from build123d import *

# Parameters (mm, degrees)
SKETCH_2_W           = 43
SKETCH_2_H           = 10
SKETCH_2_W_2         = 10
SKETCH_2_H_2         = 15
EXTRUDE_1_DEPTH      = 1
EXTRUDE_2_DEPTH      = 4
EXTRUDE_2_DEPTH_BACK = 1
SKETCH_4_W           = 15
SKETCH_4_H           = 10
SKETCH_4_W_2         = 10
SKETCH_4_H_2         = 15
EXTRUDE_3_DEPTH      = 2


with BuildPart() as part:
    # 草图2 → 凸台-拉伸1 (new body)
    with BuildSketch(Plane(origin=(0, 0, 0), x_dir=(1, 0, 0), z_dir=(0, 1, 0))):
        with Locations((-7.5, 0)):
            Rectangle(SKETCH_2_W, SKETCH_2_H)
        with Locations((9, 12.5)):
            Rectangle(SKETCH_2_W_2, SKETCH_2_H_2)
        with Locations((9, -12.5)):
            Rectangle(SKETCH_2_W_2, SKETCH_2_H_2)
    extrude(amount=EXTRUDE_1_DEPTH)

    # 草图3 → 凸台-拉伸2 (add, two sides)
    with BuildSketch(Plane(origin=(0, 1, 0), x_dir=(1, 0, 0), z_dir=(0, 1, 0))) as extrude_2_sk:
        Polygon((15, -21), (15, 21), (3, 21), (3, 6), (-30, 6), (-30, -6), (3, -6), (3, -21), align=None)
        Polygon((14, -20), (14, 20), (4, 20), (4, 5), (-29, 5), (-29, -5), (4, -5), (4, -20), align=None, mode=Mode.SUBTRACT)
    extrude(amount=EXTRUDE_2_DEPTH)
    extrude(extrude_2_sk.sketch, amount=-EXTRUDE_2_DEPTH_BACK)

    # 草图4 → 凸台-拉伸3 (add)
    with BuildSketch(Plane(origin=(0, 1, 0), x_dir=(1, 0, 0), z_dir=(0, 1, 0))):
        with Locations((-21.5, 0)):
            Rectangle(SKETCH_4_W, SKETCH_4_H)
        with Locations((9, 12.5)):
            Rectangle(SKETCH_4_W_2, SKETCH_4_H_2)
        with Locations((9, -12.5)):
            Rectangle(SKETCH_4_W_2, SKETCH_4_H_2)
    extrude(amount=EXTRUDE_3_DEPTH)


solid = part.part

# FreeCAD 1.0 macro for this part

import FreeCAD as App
import Part
import Sketcher

V = App.Vector
Q = App.Units.Quantity

doc = App.newDocument("Part")
body = doc.addObject("PartDesign::Body", "Body")

# Sketch on XZ plane
sketch1 = body.newObject("Sketcher::SketchObject", "Sketch")
sketch1.AttachmentSupport = (doc.getObject("XZ_Plane"), [""])
sketch1.MapMode = "FlatFace"
sketch1.addGeometry([
    Part.LineSegment(V(-29, -5, 0), V(-29, 5, 0)),  # 0
    Part.LineSegment(V(-29, 5, 0), V(4, 5, 0)),  # 1
    Part.LineSegment(V(4, 5, 0), V(4, 20, 0)),  # 2
    Part.LineSegment(V(4, 20, 0), V(14, 20, 0)),  # 3
    Part.LineSegment(V(14, 20, 0), V(14, -20, 0)),  # 4
    Part.LineSegment(V(14, -20, 0), V(4, -20, 0)),  # 5
    Part.LineSegment(V(4, -20, 0), V(4, -5, 0)),  # 6
    Part.LineSegment(V(4, -5, 0), V(-29, -5, 0)),  # 7
], False)
sketch1.addConstraint([
    Sketcher.Constraint("Coincident", 0, 2, 1, 1),
    Sketcher.Constraint("Coincident", 1, 2, 2, 1),
    Sketcher.Constraint("Coincident", 2, 2, 3, 1),
    Sketcher.Constraint("Coincident", 3, 2, 4, 1),
    Sketcher.Constraint("Coincident", 4, 2, 5, 1),
    Sketcher.Constraint("Coincident", 5, 2, 6, 1),
    Sketcher.Constraint("Coincident", 6, 2, 7, 1),
    Sketcher.Constraint("Coincident", 7, 2, 0, 1),
    Sketcher.Constraint("Vertical", 0),
    Sketcher.Constraint("Horizontal", 1),
    Sketcher.Constraint("Vertical", 2),
    Sketcher.Constraint("Horizontal", 3),
    Sketcher.Constraint("Vertical", 4),
    Sketcher.Constraint("Horizontal", 5),
    Sketcher.Constraint("Vertical", 6),
    Sketcher.Constraint("Horizontal", 7),
    Sketcher.Constraint("Symmetric", 2, 2, 5, 2, -1),
    Sketcher.Constraint("Equal", 5, 0),
    Sketcher.Constraint("Equal", 2, 6),
    Sketcher.Constraint("DistanceX", 1, 1, 1, 2, Q("33 mm")),
    Sketcher.Constraint("DistanceX", 3, 1, 3, 2, Q("10 mm")),
    Sketcher.Constraint("DistanceY", 2, 1, 2, 2, Q("15 mm")),
    Sketcher.Constraint("DistanceX", 0, 2, -1, 1, Q("29 mm")),
])
pad1 = body.newObject("PartDesign::Pad", "Pad")
pad1.Profile = sketch1
pad1.Length = 1
pad1.Reversed = True

# Sketch on XZ plane
sketch2 = body.newObject("Sketcher::SketchObject", "Sketch001")
sketch2.AttachmentSupport = (doc.getObject("XZ_Plane"), [""])
sketch2.MapMode = "FlatFace"
sketch2.AttachmentOffset = App.Placement(V(0, 0, -1), App.Rotation())
sketch2.addGeometry([
    Part.LineSegment(V(15, 21, 0), V(15, -21, 0)),  # 0
    Part.LineSegment(V(15, -21, 0), V(3, -21, 0)),  # 1
    Part.LineSegment(V(3, -21, 0), V(3, -6, 0)),  # 2
    Part.LineSegment(V(3, -6, 0), V(-30, -6, 0)),  # 3
    Part.LineSegment(V(-30, -6, 0), V(-30, 6, 0)),  # 4
    Part.LineSegment(V(-30, 6, 0), V(3, 6, 0)),  # 5
    Part.LineSegment(V(3, 6, 0), V(3, 21, 0)),  # 6
    Part.LineSegment(V(3, 21, 0), V(15, 21, 0)),  # 7
    Part.LineSegment(V(14, -20, 0), V(14, 20, 0)),  # 8
    Part.LineSegment(V(14, 20, 0), V(4, 20, 0)),  # 9
    Part.LineSegment(V(4, 20, 0), V(4, 5, 0)),  # 10
    Part.LineSegment(V(4, 5, 0), V(-29, 5, 0)),  # 11
    Part.LineSegment(V(-29, 5, 0), V(-29, -5, 0)),  # 12
    Part.LineSegment(V(-29, -5, 0), V(4, -5, 0)),  # 13
    Part.LineSegment(V(4, -5, 0), V(4, -20, 0)),  # 14
    Part.LineSegment(V(4, -20, 0), V(14, -20, 0)),  # 15
], False)
sketch2.addConstraint([
    Sketcher.Constraint("Coincident", 0, 2, 1, 1),
    Sketcher.Constraint("Coincident", 1, 2, 2, 1),
    Sketcher.Constraint("Coincident", 2, 2, 3, 1),
    Sketcher.Constraint("Coincident", 3, 2, 4, 1),
    Sketcher.Constraint("Coincident", 4, 2, 5, 1),
    Sketcher.Constraint("Coincident", 5, 2, 6, 1),
    Sketcher.Constraint("Coincident", 6, 2, 7, 1),
    Sketcher.Constraint("Coincident", 7, 2, 0, 1),
    Sketcher.Constraint("Coincident", 8, 2, 9, 1),
    Sketcher.Constraint("Coincident", 9, 2, 10, 1),
    Sketcher.Constraint("Coincident", 10, 2, 11, 1),
    Sketcher.Constraint("Coincident", 11, 2, 12, 1),
    Sketcher.Constraint("Coincident", 12, 2, 13, 1),
    Sketcher.Constraint("Coincident", 13, 2, 14, 1),
    Sketcher.Constraint("Coincident", 14, 2, 15, 1),
    Sketcher.Constraint("Coincident", 15, 2, 8, 1),
    Sketcher.Constraint("Vertical", 0),
    Sketcher.Constraint("Horizontal", 1),
    Sketcher.Constraint("Vertical", 2),
    Sketcher.Constraint("Horizontal", 3),
    Sketcher.Constraint("Vertical", 4),
    Sketcher.Constraint("Horizontal", 5),
    Sketcher.Constraint("Vertical", 6),
    Sketcher.Constraint("Horizontal", 7),
    Sketcher.Constraint("Vertical", 8),
    Sketcher.Constraint("Horizontal", 9),
    Sketcher.Constraint("Vertical", 10),
    Sketcher.Constraint("Horizontal", 11),
    Sketcher.Constraint("Vertical", 12),
    Sketcher.Constraint("Horizontal", 13),
    Sketcher.Constraint("Vertical", 14),
    Sketcher.Constraint("Horizontal", 15),
    Sketcher.Constraint("Symmetric", 2, 2, 5, 2, -1),
    Sketcher.Constraint("Symmetric", 10, 2, 13, 2, -1),
    Sketcher.Constraint("Equal", 5, 11),
    Sketcher.Constraint("Equal", 7, 4),
    Sketcher.Constraint("Equal", 2, 6),
    Sketcher.Constraint("Equal", 6, 10),
    Sketcher.Constraint("Equal", 15, 12),
    Sketcher.Constraint("Equal", 10, 14),
    Sketcher.Constraint("DistanceX", 1, 2, 1, 1, Q("12 mm")),
    Sketcher.Constraint("DistanceX", 3, 2, 3, 1, Q("33 mm")),
    Sketcher.Constraint("DistanceX", 9, 2, 9, 1, Q("10 mm")),
    Sketcher.Constraint("DistanceY", 0, 2, 0, 1, Q("42 mm")),
    Sketcher.Constraint("DistanceX", -1, 1, 0, 2, Q("15 mm")),
    Sketcher.Constraint("DistanceX", -1, 1, 8, 2, Q("14 mm")),
])
pad2 = body.newObject("PartDesign::Pad", "Pad001")
pad2.Profile = sketch2
pad2.Type = "TwoLengths"
pad2.Length = 4
pad2.Length2 = 1
pad2.Reversed = True

# Sketch on XZ plane
sketch3 = body.newObject("Sketcher::SketchObject", "Sketch002")
sketch3.AttachmentSupport = (doc.getObject("XZ_Plane"), [""])
sketch3.MapMode = "FlatFace"
sketch3.AttachmentOffset = App.Placement(V(0, 0, -1), App.Rotation())
sketch3.addGeometry([
    Part.LineSegment(V(-29, -5, 0), V(-29, 5, 0)),  # 0
    Part.LineSegment(V(-29, 5, 0), V(-14, 5, 0)),  # 1
    Part.LineSegment(V(-14, 5, 0), V(-14, -5, 0)),  # 2
    Part.LineSegment(V(-14, -5, 0), V(-29, -5, 0)),  # 3
    Part.LineSegment(V(4, -20, 0), V(4, -5, 0)),  # 4
    Part.LineSegment(V(4, -5, 0), V(14, -5, 0)),  # 5
    Part.LineSegment(V(14, -5, 0), V(14, -20, 0)),  # 6
    Part.LineSegment(V(14, -20, 0), V(4, -20, 0)),  # 7
    Part.LineSegment(V(4, 5, 0), V(4, 20, 0)),  # 8
    Part.LineSegment(V(4, 20, 0), V(14, 20, 0)),  # 9
    Part.LineSegment(V(14, 20, 0), V(14, 5, 0)),  # 10
    Part.LineSegment(V(14, 5, 0), V(4, 5, 0)),  # 11
], False)
sketch3.addConstraint([
    Sketcher.Constraint("Coincident", 0, 2, 1, 1),
    Sketcher.Constraint("Coincident", 1, 2, 2, 1),
    Sketcher.Constraint("Coincident", 2, 2, 3, 1),
    Sketcher.Constraint("Coincident", 3, 2, 0, 1),
    Sketcher.Constraint("Coincident", 4, 2, 5, 1),
    Sketcher.Constraint("Coincident", 5, 2, 6, 1),
    Sketcher.Constraint("Coincident", 6, 2, 7, 1),
    Sketcher.Constraint("Coincident", 7, 2, 4, 1),
    Sketcher.Constraint("Coincident", 8, 2, 9, 1),
    Sketcher.Constraint("Coincident", 9, 2, 10, 1),
    Sketcher.Constraint("Coincident", 10, 2, 11, 1),
    Sketcher.Constraint("Coincident", 11, 2, 8, 1),
    Sketcher.Constraint("Vertical", 0),
    Sketcher.Constraint("Horizontal", 1),
    Sketcher.Constraint("Vertical", 2),
    Sketcher.Constraint("Horizontal", 3),
    Sketcher.Constraint("Vertical", 4),
    Sketcher.Constraint("Horizontal", 5),
    Sketcher.Constraint("Vertical", 6),
    Sketcher.Constraint("Horizontal", 7),
    Sketcher.Constraint("Vertical", 8),
    Sketcher.Constraint("Horizontal", 9),
    Sketcher.Constraint("Vertical", 10),
    Sketcher.Constraint("Horizontal", 11),
    Sketcher.Constraint("Symmetric", 1, 2, 5, 2, -1, 1),
    Sketcher.Constraint("Symmetric", 2, 2, 10, 2, -1, 1),
    Sketcher.Constraint("Symmetric", 7, 2, 8, 2, -1),
    Sketcher.Constraint("Horizontal", 3, 2, 4, 2),
    Sketcher.Constraint("Equal", 11, 0),
    Sketcher.Constraint("Equal", 3, 4),
    Sketcher.Constraint("DistanceX", 1, 1, 1, 2, Q("15 mm")),
    Sketcher.Constraint("DistanceX", 5, 1, 5, 2, Q("10 mm")),
    Sketcher.Constraint("DistanceX", 0, 2, -1, 1, Q("29 mm")),
])
pad3 = body.newObject("PartDesign::Pad", "Pad002")
pad3.Profile = sketch3
pad3.Length = 2
pad3.Reversed = True

doc.recompute()
